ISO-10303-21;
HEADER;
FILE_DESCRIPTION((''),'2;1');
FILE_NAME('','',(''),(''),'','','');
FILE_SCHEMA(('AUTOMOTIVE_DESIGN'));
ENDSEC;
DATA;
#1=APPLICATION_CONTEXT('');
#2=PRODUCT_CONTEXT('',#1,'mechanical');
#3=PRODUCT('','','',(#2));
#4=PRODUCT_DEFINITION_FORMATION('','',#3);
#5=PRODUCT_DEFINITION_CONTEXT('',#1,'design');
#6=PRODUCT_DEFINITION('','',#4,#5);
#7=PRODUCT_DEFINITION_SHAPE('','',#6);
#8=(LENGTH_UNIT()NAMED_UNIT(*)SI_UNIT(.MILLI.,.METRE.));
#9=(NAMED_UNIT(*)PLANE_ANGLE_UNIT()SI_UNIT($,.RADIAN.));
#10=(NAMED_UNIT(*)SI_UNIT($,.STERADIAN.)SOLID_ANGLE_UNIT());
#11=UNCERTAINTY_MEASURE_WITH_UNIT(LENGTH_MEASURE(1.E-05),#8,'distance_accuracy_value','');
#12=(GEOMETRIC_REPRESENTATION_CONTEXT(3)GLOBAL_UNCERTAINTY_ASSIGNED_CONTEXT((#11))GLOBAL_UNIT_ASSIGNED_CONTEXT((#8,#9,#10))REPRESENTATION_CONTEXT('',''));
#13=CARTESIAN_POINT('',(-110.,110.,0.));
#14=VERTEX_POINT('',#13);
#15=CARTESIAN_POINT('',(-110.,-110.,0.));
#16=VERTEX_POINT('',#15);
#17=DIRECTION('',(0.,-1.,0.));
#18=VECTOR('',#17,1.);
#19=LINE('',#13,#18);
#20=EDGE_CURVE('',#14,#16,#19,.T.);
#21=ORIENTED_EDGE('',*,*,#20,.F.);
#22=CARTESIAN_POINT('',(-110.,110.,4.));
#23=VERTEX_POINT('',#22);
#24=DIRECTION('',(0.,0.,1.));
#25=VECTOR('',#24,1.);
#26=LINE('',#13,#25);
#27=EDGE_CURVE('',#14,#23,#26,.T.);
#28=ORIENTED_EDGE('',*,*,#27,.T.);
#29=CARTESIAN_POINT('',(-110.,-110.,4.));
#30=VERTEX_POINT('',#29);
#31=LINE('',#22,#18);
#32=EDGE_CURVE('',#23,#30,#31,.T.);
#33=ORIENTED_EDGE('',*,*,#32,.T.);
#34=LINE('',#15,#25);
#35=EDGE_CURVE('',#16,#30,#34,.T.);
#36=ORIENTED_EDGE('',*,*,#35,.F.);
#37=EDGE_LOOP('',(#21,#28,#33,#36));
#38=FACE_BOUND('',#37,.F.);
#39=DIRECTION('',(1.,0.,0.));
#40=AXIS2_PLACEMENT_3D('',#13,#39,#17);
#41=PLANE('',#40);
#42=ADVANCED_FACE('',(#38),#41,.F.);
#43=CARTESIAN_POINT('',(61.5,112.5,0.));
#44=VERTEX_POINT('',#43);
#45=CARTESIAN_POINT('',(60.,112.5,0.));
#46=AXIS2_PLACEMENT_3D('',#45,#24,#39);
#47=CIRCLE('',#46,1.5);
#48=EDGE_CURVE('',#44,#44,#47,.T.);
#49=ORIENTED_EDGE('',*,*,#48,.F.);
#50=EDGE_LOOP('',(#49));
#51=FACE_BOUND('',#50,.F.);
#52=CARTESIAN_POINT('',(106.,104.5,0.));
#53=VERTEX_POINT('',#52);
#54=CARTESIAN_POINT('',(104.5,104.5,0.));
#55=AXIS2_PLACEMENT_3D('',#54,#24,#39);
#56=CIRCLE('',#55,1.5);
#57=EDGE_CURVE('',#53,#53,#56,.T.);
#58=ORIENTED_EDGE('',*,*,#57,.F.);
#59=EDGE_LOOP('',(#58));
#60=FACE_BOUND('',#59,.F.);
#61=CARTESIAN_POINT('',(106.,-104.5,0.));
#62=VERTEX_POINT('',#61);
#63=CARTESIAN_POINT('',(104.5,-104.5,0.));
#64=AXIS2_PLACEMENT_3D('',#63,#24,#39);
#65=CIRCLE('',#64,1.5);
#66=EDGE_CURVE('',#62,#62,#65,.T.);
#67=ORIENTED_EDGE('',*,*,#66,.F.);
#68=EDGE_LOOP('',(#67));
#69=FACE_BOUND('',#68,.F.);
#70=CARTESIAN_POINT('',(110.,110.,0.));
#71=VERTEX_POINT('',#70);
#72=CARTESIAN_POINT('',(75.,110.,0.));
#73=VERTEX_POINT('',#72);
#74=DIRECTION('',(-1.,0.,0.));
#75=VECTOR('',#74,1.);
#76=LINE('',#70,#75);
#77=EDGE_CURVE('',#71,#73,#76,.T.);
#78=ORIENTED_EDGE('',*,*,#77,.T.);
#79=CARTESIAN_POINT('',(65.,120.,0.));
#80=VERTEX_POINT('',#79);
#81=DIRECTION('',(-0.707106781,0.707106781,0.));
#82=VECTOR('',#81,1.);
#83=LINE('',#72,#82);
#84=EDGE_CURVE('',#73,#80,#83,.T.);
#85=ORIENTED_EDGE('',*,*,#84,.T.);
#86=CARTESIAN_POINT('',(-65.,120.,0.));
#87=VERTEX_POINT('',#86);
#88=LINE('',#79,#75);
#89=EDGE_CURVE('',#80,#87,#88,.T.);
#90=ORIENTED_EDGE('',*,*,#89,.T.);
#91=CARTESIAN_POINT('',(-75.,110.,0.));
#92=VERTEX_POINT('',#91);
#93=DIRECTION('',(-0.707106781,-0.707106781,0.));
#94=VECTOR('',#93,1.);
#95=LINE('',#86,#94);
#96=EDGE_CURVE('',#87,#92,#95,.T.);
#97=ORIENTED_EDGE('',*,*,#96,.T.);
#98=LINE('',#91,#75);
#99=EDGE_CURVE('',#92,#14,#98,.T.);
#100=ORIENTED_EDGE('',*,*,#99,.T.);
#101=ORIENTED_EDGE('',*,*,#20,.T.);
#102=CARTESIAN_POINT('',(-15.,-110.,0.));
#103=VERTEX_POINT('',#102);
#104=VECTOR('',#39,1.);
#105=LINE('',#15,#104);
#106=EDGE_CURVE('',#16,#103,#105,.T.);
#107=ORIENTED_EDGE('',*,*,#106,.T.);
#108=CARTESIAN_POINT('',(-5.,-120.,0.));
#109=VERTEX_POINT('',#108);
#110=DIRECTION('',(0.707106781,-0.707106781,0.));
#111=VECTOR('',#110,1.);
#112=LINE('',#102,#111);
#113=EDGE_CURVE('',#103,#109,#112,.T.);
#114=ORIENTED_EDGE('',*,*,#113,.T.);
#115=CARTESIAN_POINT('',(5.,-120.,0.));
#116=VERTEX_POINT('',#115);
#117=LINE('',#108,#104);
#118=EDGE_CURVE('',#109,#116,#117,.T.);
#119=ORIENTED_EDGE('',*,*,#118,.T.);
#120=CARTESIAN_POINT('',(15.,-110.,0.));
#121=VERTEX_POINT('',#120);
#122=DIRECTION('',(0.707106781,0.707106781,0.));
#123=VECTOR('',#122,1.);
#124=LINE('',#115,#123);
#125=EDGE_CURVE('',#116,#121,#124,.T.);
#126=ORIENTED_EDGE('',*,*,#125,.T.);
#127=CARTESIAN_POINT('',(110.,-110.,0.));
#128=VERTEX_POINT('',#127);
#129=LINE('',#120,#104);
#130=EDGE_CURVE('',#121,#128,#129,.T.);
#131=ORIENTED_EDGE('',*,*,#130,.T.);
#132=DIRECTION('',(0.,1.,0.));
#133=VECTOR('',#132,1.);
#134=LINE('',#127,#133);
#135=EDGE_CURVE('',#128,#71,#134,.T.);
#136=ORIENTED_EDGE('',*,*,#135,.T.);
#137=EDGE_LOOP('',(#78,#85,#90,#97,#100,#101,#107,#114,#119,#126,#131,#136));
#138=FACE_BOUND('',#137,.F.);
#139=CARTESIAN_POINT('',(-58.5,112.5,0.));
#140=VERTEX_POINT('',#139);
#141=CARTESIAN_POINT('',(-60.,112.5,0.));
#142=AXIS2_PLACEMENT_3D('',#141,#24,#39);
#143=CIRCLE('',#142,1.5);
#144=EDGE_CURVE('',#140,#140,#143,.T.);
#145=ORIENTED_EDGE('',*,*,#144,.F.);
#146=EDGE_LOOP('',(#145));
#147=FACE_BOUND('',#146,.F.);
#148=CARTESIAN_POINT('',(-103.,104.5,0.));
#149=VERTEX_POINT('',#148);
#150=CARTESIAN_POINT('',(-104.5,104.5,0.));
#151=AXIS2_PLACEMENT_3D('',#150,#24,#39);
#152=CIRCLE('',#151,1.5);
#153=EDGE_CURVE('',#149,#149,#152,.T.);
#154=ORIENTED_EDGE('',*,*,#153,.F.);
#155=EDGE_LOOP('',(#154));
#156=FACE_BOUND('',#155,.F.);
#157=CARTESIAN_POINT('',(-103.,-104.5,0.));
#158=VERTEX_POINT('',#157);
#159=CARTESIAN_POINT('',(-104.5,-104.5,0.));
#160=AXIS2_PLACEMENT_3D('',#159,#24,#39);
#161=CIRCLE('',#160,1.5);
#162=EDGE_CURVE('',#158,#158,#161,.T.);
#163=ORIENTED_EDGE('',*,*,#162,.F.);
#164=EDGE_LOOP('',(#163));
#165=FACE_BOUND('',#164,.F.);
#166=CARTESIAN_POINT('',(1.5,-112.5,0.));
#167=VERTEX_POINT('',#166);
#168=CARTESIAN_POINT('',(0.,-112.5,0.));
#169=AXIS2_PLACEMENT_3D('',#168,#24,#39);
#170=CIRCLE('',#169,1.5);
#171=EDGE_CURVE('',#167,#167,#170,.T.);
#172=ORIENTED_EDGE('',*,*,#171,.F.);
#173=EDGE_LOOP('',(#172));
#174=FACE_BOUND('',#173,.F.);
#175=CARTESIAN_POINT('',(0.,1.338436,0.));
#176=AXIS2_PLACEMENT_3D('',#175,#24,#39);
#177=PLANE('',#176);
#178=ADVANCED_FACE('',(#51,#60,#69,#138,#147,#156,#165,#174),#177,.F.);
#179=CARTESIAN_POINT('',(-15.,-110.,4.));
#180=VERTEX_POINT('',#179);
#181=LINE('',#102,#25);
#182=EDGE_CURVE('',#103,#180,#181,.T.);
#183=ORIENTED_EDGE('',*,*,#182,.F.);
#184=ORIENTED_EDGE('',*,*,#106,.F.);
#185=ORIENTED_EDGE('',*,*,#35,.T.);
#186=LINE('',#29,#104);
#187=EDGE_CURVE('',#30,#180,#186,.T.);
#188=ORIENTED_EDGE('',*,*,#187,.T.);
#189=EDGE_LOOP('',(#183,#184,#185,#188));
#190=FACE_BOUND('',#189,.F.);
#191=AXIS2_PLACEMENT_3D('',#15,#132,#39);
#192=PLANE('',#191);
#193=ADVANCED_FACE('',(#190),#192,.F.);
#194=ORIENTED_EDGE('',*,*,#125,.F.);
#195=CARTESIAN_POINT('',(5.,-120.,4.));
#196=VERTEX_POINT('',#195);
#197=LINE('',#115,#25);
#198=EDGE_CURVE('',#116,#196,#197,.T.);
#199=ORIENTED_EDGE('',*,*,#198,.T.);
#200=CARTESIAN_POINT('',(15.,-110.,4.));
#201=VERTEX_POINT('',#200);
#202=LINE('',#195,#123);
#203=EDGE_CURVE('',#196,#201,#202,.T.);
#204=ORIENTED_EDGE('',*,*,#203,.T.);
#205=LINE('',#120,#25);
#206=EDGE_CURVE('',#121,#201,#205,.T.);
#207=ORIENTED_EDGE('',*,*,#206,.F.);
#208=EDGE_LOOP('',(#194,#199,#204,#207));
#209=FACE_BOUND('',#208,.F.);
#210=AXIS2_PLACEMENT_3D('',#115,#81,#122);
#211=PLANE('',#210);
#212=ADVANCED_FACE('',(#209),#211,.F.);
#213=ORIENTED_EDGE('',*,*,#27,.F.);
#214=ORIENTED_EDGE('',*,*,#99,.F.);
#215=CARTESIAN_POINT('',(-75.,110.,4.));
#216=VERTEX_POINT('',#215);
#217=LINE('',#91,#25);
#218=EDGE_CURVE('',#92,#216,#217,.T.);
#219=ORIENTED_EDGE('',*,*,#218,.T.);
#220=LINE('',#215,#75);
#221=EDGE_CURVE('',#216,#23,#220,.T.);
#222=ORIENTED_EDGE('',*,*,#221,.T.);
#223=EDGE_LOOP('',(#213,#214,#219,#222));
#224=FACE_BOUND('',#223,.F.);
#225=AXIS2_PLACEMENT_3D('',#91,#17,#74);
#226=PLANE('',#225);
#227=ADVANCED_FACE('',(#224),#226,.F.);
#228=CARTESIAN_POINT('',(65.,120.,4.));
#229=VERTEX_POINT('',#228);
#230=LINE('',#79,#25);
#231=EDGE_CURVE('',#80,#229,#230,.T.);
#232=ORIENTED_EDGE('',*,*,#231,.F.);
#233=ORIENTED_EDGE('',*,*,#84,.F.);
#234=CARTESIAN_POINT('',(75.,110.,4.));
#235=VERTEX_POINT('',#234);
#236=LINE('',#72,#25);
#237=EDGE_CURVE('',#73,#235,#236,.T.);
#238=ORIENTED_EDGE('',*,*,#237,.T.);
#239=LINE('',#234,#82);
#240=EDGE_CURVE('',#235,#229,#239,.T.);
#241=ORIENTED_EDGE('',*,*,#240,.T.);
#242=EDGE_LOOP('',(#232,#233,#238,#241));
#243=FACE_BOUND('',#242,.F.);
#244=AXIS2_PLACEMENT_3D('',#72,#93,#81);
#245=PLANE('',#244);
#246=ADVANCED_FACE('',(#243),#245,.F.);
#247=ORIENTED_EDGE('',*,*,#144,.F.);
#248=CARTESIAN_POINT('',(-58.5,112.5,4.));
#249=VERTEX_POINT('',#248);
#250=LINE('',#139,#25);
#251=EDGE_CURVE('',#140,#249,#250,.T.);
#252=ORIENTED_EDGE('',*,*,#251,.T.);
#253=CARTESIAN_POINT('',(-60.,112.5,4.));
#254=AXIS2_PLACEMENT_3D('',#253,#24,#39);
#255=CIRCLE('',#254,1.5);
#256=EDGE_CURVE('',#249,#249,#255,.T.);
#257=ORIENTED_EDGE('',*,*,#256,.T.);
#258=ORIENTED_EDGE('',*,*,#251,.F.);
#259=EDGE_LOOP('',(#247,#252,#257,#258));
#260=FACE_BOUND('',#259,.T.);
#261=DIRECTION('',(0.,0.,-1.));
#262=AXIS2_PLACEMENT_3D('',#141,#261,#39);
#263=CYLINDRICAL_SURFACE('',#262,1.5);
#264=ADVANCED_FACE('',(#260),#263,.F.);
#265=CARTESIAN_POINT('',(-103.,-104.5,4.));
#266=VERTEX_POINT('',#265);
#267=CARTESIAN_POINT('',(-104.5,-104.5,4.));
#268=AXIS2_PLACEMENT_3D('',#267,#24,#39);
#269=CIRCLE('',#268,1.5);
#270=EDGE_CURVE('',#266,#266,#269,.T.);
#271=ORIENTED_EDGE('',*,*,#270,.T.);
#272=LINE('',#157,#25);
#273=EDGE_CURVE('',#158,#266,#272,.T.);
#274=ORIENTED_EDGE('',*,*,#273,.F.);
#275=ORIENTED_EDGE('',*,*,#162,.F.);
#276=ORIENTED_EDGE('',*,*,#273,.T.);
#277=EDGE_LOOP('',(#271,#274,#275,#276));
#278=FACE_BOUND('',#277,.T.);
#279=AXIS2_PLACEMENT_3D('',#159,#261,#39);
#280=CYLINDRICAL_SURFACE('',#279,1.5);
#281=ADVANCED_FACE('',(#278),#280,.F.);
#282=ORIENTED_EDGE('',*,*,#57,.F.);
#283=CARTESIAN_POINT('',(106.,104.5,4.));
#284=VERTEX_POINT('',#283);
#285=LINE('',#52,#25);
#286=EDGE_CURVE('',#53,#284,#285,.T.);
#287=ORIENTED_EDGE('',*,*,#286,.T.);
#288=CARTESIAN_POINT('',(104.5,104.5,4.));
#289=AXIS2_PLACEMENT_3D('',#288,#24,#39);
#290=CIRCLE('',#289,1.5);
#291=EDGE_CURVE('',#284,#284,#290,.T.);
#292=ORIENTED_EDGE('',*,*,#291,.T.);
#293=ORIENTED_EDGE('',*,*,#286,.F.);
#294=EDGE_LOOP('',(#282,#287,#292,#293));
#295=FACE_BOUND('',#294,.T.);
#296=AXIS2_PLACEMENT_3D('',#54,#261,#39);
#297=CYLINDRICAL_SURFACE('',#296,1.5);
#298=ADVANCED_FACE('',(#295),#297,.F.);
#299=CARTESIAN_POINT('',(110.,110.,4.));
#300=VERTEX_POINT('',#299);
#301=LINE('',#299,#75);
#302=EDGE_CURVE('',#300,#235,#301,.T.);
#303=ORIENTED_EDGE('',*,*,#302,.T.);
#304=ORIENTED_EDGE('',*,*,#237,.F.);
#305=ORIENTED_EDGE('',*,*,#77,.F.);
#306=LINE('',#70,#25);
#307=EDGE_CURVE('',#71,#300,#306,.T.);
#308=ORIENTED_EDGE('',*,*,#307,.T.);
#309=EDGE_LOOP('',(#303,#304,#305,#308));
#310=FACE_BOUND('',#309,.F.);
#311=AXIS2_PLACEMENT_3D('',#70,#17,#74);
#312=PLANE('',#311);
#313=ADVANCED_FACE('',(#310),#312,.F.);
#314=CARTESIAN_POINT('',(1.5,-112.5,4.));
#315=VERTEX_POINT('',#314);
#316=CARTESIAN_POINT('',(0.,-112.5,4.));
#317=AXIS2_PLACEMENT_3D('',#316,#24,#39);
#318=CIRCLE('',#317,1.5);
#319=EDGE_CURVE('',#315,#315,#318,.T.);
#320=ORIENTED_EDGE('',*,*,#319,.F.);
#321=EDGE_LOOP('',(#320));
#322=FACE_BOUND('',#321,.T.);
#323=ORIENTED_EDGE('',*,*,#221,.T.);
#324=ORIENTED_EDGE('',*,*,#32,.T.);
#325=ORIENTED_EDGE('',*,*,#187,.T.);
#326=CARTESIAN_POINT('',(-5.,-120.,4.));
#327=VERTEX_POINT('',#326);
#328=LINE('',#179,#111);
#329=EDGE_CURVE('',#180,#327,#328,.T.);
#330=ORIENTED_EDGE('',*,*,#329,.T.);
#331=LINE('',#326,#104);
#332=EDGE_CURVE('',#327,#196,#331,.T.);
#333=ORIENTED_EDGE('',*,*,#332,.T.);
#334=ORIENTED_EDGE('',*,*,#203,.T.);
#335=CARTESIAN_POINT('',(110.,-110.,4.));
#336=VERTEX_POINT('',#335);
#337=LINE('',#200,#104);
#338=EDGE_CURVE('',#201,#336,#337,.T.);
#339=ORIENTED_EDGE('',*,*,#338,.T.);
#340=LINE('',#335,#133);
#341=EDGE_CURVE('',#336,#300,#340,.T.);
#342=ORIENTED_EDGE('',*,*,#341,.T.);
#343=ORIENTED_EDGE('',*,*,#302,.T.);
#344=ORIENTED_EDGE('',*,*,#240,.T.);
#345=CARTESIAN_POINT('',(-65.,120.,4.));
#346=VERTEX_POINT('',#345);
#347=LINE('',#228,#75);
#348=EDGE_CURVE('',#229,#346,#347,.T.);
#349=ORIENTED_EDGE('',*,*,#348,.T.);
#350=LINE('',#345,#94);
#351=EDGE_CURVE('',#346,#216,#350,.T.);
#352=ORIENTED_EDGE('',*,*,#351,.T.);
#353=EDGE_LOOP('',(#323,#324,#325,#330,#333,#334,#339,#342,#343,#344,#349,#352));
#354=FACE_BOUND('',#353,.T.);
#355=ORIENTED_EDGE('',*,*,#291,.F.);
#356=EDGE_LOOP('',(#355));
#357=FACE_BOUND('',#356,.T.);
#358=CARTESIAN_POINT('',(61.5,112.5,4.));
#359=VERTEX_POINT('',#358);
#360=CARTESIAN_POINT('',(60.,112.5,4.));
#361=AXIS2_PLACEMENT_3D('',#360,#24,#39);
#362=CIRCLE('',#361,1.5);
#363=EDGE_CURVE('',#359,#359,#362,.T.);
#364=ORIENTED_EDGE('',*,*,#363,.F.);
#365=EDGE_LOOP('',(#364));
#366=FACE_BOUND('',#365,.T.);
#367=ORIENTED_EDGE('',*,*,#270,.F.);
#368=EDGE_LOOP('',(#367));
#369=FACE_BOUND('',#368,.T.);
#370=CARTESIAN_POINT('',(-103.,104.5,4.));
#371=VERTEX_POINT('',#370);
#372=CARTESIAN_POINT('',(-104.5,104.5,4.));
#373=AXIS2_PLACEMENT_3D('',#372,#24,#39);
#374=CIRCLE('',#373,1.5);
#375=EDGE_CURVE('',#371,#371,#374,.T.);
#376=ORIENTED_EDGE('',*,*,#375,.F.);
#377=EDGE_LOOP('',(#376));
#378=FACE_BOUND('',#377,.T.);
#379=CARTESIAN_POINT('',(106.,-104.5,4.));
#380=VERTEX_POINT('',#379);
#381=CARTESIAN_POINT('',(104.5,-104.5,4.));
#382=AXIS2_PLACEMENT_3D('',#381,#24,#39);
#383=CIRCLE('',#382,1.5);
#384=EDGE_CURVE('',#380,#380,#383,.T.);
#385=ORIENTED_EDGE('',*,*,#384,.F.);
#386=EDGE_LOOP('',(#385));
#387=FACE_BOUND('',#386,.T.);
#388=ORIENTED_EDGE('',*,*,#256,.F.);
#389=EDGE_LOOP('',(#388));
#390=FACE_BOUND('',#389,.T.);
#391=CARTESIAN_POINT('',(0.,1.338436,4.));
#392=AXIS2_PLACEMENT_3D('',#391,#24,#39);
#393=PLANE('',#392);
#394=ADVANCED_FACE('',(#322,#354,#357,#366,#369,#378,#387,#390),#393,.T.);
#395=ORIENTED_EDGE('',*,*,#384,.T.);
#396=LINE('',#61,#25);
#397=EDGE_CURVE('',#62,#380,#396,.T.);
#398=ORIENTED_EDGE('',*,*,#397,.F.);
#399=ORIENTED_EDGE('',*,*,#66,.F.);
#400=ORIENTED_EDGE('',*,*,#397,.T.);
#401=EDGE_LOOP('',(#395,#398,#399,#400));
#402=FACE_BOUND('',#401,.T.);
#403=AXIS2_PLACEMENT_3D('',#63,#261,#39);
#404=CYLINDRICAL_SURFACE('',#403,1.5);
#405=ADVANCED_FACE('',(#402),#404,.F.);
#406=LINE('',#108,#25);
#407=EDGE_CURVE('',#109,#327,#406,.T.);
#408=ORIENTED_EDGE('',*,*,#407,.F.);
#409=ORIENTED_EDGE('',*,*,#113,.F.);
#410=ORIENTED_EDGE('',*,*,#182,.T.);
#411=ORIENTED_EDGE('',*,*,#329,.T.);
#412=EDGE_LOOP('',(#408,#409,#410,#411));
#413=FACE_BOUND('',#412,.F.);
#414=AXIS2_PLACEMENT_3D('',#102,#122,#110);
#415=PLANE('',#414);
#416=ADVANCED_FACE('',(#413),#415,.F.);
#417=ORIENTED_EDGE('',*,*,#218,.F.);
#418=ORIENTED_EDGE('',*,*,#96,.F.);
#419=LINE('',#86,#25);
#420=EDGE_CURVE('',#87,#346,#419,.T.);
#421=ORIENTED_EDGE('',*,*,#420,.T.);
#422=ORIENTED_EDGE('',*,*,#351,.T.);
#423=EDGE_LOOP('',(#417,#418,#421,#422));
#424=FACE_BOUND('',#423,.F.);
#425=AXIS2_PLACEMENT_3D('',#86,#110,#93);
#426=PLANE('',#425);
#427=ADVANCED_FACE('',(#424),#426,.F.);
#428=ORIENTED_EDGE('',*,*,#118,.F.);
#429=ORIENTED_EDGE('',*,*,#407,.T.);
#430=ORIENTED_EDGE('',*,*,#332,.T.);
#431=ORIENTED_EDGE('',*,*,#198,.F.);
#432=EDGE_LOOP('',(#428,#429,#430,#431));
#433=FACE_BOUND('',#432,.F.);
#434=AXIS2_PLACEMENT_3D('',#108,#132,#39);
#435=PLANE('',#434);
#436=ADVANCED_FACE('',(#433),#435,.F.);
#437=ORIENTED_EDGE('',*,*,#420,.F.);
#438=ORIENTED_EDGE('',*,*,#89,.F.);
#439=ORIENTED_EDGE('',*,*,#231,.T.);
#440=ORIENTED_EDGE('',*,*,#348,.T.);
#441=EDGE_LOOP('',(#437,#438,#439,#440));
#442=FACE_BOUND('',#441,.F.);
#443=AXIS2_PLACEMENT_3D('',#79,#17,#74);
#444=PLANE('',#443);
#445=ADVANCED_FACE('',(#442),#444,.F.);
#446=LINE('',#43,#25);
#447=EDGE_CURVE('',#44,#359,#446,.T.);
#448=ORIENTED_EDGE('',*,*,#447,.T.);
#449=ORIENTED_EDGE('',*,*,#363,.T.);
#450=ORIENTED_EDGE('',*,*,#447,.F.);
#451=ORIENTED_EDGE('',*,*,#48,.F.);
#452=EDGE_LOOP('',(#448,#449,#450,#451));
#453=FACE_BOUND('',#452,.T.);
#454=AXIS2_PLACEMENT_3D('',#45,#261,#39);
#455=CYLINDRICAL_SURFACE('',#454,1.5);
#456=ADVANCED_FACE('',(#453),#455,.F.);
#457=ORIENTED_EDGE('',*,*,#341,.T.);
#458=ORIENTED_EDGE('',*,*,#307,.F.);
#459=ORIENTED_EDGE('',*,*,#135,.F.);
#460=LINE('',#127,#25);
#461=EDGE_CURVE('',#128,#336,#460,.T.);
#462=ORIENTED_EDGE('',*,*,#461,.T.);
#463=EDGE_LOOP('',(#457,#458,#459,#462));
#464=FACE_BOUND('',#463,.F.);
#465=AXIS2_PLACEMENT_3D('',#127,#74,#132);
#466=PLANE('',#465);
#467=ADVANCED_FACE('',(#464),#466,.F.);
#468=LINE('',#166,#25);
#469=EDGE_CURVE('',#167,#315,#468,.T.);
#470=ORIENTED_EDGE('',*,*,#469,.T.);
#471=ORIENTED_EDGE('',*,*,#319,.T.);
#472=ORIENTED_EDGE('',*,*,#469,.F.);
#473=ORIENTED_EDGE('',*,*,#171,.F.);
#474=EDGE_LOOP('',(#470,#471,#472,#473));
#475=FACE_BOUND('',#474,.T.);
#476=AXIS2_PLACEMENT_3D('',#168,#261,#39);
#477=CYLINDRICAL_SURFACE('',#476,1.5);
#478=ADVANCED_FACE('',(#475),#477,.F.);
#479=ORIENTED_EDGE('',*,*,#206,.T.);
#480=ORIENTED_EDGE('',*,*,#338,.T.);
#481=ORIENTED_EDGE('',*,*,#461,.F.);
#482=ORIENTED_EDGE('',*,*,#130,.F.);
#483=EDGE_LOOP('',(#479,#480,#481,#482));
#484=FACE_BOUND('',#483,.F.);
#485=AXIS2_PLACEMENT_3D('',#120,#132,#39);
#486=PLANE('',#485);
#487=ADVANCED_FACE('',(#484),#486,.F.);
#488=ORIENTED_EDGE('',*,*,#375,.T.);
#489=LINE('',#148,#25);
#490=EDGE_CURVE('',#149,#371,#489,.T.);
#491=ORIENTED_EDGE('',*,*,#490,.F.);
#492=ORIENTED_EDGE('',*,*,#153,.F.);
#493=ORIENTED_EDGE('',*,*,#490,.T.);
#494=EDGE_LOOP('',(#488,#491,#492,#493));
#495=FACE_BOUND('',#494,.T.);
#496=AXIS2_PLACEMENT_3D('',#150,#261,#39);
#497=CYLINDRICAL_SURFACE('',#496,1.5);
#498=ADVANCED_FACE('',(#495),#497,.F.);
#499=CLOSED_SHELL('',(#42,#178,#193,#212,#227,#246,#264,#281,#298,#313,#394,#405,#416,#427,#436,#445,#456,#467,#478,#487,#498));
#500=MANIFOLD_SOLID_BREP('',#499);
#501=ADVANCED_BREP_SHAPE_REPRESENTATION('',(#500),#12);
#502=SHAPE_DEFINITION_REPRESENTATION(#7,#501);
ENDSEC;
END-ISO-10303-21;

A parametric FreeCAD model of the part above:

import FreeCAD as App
import Part
import Sketcher
from FreeCAD import Vector


def add_polygon(sketch, points):
    """Adds a closed chain of lines whose ends are joined by coincident constraints."""
    first, n = sketch.GeometryCount, len(points)
    for a, b in zip(points, points[1:] + points[:1]):
        sketch.addGeometry(Part.LineSegment(App.Vector(*a, 0), App.Vector(*b, 0)), False)
    for i in range(n):
        sketch.addConstraint(Sketcher.Constraint("Coincident", first + i, 2, first + (i + 1) % n, 1))

doc = App.newDocument("Part")
body = doc.addObject("PartDesign::Body", "Body")

sketch1 = body.newObject("Sketcher::SketchObject", "Sketch")
sketch1.AttachmentSupport = (doc.getObject("XY_Plane"), [""])
sketch1.MapMode = "FlatFace"
add_polygon(sketch1, [(-75, 110), (-110, 110), (-110, -110), (-15, -110), (-5, -120), (5, -120), (15, -110), (110, -110), (110, 110), (75, 110), (65, 120), (-65, 120)])
sketch1.addGeometry(Part.Circle(Vector(-104.5, -104.5, 0), Vector(0, 0, 1), 1.5), False)
sketch1.addGeometry(Part.Circle(Vector(0, -112.5, 0), Vector(0, 0, 1), 1.5), False)
sketch1.addGeometry(Part.Circle(Vector(104.5, -104.5, 0), Vector(0, 0, 1), 1.5), False)
sketch1.addGeometry(Part.Circle(Vector(-104.5, 104.5, 0), Vector(0, 0, 1), 1.5), False)
sketch1.addGeometry(Part.Circle(Vector(-60, 112.5, 0), Vector(0, 0, 1), 1.5), False)
sketch1.addGeometry(Part.Circle(Vector(60, 112.5, 0), Vector(0, 0, 1), 1.5), False)
sketch1.addGeometry(Part.Circle(Vector(104.5, 104.5, 0), Vector(0, 0, 1), 1.5), False)
sketch1.addConstraint([
    Sketcher.Constraint("Horizontal", 0),
    Sketcher.Constraint("Vertical", 1),
    Sketcher.Constraint("Horizontal", 2),
    Sketcher.Constraint("Horizontal", 4),
    Sketcher.Constraint("Horizontal", 6),
    Sketcher.Constraint("Vertical", 7),
    Sketcher.Constraint("Horizontal", 8),
    Sketcher.Constraint("Horizontal", 10),
    Sketcher.Constraint("Equal", 12, 13),
    Sketcher.Constraint("Equal", 13, 14),
    Sketcher.Constraint("Equal", 14, 15),
    Sketcher.Constraint("Equal", 15, 16),
    Sketcher.Constraint("Equal", 16, 17),
    Sketcher.Constraint("Equal", 17, 18),
    Sketcher.Constraint("Symmetric", 14, 3, 15, 3, -1, 1),
    Sketcher.Constraint("Symmetric", 12, 3, 18, 3, -1, 1),
    Sketcher.Constraint("Symmetric", 0, 2, 6, 2, -1, 1),
    Sketcher.Constraint("Symmetric", 12, 3, 14, 3, -2),
    Sketcher.Constraint("Symmetric", 16, 3, 17, 3, -2),
    Sketcher.Constraint("Symmetric", 2, 2, 5, 2, -2),
    Sketcher.Constraint("Symmetric", 8, 2, 11, 2, -2),
    Sketcher.Constraint("PointOnObject", 13, 3, -2),
    Sketcher.Constraint("Perpendicular", 3, 5),
    Sketcher.Constraint("Perpendicular", 5, 9),
    Sketcher.Constraint("Perpendicular", 9, 11),
    Sketcher.Constraint("Equal", 3, 5),
    Sketcher.Constraint("Equal", 5, 9),
    Sketcher.Constraint("Diameter", 12, 3.0),
    Sketcher.Constraint("DistanceX", 0, 2, 0, 1, 35.0),
    Sketcher.Constraint("DistanceX", 2, 1, 2, 2, 95.0),
    Sketcher.Constraint("DistanceX", 4, 1, 4, 2, 10.0),
    Sketcher.Constraint("DistanceY", 1, 2, 1, 1, 220.0),
    Sketcher.Constraint("DistanceX", 16, 3, -1, 1, 60.0),
    Sketcher.Constraint("DistanceX", 0, 2, -1, 1, 110.0),
    Sketcher.Constraint("DistanceY", 13, 3, 12, 3, 8.0),
    Sketcher.Constraint("DistanceX", 12, 3, 14, 3, 209.0),
    Sketcher.Constraint("DistanceY", 12, 3, 15, 3, 209.0),
    Sketcher.Constraint("DistanceY", 15, 3, 16, 3, 8.0),
])
pad1 = body.newObject("PartDesign::Pad", "Pad")
pad1.Profile = sketch1
pad1.Length = 4

doc.recompute()
